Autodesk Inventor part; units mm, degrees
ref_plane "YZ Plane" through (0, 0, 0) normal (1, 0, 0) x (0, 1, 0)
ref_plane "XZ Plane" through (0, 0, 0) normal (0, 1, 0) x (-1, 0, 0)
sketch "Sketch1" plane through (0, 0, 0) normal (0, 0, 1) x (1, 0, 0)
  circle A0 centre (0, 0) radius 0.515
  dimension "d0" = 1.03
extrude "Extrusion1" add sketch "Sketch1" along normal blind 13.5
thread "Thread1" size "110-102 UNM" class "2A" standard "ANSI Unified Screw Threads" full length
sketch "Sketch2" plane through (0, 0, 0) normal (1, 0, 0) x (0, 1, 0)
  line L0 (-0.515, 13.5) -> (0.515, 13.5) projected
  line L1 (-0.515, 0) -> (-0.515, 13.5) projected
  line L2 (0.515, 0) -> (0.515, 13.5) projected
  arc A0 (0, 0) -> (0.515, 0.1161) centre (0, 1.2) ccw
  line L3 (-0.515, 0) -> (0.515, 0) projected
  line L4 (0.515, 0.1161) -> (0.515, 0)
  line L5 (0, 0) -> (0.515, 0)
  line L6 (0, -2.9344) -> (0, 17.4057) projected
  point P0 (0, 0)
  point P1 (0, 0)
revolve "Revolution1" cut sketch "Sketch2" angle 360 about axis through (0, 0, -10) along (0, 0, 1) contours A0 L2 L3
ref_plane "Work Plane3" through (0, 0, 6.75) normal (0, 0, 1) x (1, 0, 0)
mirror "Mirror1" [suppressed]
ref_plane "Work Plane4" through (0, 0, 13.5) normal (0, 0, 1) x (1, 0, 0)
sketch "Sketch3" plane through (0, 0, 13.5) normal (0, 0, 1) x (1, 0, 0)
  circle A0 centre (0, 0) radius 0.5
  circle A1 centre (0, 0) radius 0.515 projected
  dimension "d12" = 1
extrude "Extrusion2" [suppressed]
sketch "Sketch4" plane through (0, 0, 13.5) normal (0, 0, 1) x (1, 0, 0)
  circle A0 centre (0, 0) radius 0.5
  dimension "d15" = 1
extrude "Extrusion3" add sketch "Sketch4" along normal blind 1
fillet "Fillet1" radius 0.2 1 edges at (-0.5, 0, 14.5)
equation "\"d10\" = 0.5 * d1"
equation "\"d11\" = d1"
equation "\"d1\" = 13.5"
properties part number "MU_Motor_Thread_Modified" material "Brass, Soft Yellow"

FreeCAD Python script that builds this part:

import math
import FreeCAD as App
import Part
import Sketcher

V = App.Vector


def edges_at(feature, points):
    """Names of the edges that pass closest to the given points."""
    edges = feature.Shape.Edges
    near = lambda p: min(range(len(edges)), key=lambda i: edges[i].distToShape(Part.Vertex(*p))[0])
    return sorted({f"Edge{near(p) + 1}" for p in points})

doc = App.newDocument("Part")
body = doc.addObject("PartDesign::Body", "Body")

# Sketch on XY plane
sketch1 = body.newObject("Sketcher::SketchObject", "Sketch")
sketch1.AttachmentSupport = (doc.getObject("XY_Plane"), [""])
sketch1.MapMode = "FlatFace"
sketch1.addGeometry(Part.Circle(V(0, 0, 0), V(0, 0, 1), 0.5), False)
sketch1.addConstraint([
    Sketcher.Constraint("Coincident", 0, 3, -1, 1),
    Sketcher.Constraint("Diameter", 0, 1.03),
])
pad1 = body.newObject("PartDesign::Pad", "Pad")
pad1.Profile = sketch1
pad1.Length = 13.5

# Sketch on YZ plane
sketch2 = body.newObject("Sketcher::SketchObject", "Sketch001")
sketch2.AttachmentSupport = (doc.getObject("YZ_Plane"), [""])
sketch2.MapMode = "FlatFace"
sketch2.addGeometry([
    Part.ArcOfCircle(Part.Circle(V(0, 1.2, 0), V(0, 0, 1), 1.2), math.radians(-90), math.radians(-65)),
    Part.LineSegment(V(0, 0, 0), V(0.52, 0, 0)),
    Part.LineSegment(V(0.52, 0, 0), V(0.52, 0.12, 0)),
], False)
sketch2.addConstraint([
    Sketcher.Constraint("Tangent", 0, 1, 1, 1),
    Sketcher.Constraint("Coincident", 1, 2, 2, 1),
    Sketcher.Constraint("Coincident", 2, 2, 0, 2),
    Sketcher.Constraint("Horizontal", 1),
    Sketcher.Constraint("Vertical", 2),
    Sketcher.Constraint("Coincident", 0, 1, -1, 1),
    Sketcher.Constraint("Radius", 0, 1.2),
    Sketcher.Constraint("DistanceX", 1, 1, 1, 2, 0.515),
])
groove = body.newObject("PartDesign::Groove", "Groove")
groove.Profile = sketch2
groove.ReferenceAxis = (sketch2, ["V_Axis"])
groove.Angle = 360

# Sketch on XY plane
sketch3 = body.newObject("Sketcher::SketchObject", "Sketch002")
sketch3.AttachmentSupport = (doc.getObject("XY_Plane"), [""])
sketch3.MapMode = "FlatFace"
sketch3.AttachmentOffset = App.Placement(V(0, 0, 13.5), App.Rotation())
sketch3.addGeometry(Part.Circle(V(0, 0, 0), V(0, 0, 1), 0.5), False)
sketch3.addConstraint([
    Sketcher.Constraint("Coincident", 0, 3, -1, 1),
    Sketcher.Constraint("Diameter", 0, 1.0),
])
pad2 = body.newObject("PartDesign::Pad", "Pad001")
pad2.Profile = sketch3
pad2.Length = 1
doc.recompute()

fillet = body.newObject("PartDesign::Fillet", "Fillet")
fillet.Base = (pad2, edges_at(pad2, [(-0.5, 0, 14.5)]))
fillet.Radius = 0.2

doc.recompute()
